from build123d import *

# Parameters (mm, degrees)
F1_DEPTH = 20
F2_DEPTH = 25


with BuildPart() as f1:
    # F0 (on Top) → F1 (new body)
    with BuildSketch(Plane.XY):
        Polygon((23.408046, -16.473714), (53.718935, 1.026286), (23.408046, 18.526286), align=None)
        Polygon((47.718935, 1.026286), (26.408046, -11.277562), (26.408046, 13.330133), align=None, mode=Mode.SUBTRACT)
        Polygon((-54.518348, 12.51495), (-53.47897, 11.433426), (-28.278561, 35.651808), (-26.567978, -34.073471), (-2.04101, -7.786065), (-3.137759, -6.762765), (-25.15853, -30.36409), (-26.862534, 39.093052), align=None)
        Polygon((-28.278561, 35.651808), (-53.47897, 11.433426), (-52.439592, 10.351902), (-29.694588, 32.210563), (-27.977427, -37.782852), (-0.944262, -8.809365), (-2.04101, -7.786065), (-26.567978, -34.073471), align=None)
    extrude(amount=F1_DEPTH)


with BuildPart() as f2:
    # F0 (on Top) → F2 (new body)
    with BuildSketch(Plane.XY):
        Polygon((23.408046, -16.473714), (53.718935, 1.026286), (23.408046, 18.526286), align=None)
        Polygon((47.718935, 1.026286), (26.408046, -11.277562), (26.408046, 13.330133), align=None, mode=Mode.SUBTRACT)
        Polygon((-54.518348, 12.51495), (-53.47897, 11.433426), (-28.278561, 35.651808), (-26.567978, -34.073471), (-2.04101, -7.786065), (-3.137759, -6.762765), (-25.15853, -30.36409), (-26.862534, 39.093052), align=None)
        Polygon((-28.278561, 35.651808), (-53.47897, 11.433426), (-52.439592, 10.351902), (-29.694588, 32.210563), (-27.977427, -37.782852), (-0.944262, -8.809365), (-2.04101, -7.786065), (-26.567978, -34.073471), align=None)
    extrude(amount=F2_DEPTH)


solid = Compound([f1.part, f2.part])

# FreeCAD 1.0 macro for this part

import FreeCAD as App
import Part
import Sketcher

V = App.Vector
Q = App.Units.Quantity

doc = App.newDocument("Part")
body = doc.addObject("PartDesign::Body", "Body")
body.AllowCompound = True

# Sketch on XY plane
sketch1 = doc.addObject("Sketcher::SketchObject", "Sketch")
body.addObject(sketch1)
sketch1.AttachmentSupport = (doc.XY_Plane, [""])
sketch1.MapMode = "FlatFace"
sketch1.addGeometry(Part.LineSegment(V(23.4, -16.5, 0), V(53.7, 1, 0)), False)
sketch1.addGeometry(Part.LineSegment(V(53.7, 1, 0), V(23.4, 18.5, 0)), False)
sketch1.addGeometry(Part.LineSegment(V(23.4, 18.5, 0), V(23.4, -16.5, 0)), False)
sketch1.addGeometry(Part.LineSegment(V(26.4, 13.3, 0), V(47.7, 1, 0)), False)
sketch1.addGeometry(Part.LineSegment(V(47.7, 1, 0), V(26.4, -11.3, 0)), False)
sketch1.addGeometry(Part.LineSegment(V(26.4, -11.3, 0), V(26.4, 13.3, 0)), False)
sketch1.addGeometry(Part.LineSegment(V(-54.5, 12.5, 0), V(-52.4, 10.4, 0)), False)
sketch1.addGeometry(Part.LineSegment(V(-52.4, 10.4, 0), V(-29.7, 32.2, 0)), False)
sketch1.addGeometry(Part.LineSegment(V(-29.7, 32.2, 0), V(-28, -37.8, 0)), False)
sketch1.addGeometry(Part.LineSegment(V(-28, -37.8, 0), V(-0.9, -8.8, 0)), False)
sketch1.addGeometry(Part.LineSegment(V(-0.9, -8.8, 0), V(-2, -7.8, 0)), False)
sketch1.addGeometry(Part.LineSegment(V(-2, -7.8, 0), V(-3.1, -6.8, 0)), False)
sketch1.addGeometry(Part.LineSegment(V(-3.1, -6.8, 0), V(-25.2, -30.4, 0)), False)
sketch1.addGeometry(Part.LineSegment(V(-25.2, -30.4, 0), V(-26.9, 39.1, 0)), False)
sketch1.addGeometry(Part.LineSegment(V(-26.9, 39.1, 0), V(-54.5, 12.5, 0)), False)
sketch1.addConstraint(Sketcher.Constraint("Coincident", 0, 2, 1, 1))
sketch1.addConstraint(Sketcher.Constraint("Coincident", 1, 2, 2, 1))
sketch1.addConstraint(Sketcher.Constraint("Coincident", 2, 2, 0, 1))
sketch1.addConstraint(Sketcher.Constraint("Coincident", 3, 2, 4, 1))
sketch1.addConstraint(Sketcher.Constraint("Coincident", 4, 2, 5, 1))
sketch1.addConstraint(Sketcher.Constraint("Coincident", 5, 2, 3, 1))
sketch1.addConstraint(Sketcher.Constraint("Coincident", 6, 2, 7, 1))
sketch1.addConstraint(Sketcher.Constraint("Coincident", 7, 2, 8, 1))
sketch1.addConstraint(Sketcher.Constraint("Coincident", 8, 2, 9, 1))
sketch1.addConstraint(Sketcher.Constraint("Coincident", 9, 2, 10, 1))
sketch1.addConstraint(Sketcher.Constraint("Coincident", 10, 2, 11, 1))
sketch1.addConstraint(Sketcher.Constraint("Coincident", 11, 2, 12, 1))
sketch1.addConstraint(Sketcher.Constraint("Coincident", 12, 2, 13, 1))
sketch1.addConstraint(Sketcher.Constraint("Coincident", 13, 2, 14, 1))
sketch1.addConstraint(Sketcher.Constraint("Coincident", 14, 2, 6, 1))
sketch1.addConstraint(Sketcher.Constraint("Vertical", 2))
sketch1.addConstraint(Sketcher.Constraint("Vertical", 5))
sketch1.addConstraint(Sketcher.Constraint("Parallel", 1, 3))
sketch1.addConstraint(Sketcher.Constraint("Parallel", 0, 4))
sketch1.addConstraint(Sketcher.Constraint("Perpendicular", 6, 7))
sketch1.addConstraint(Sketcher.Constraint("Perpendicular", 9, 10))
sketch1.addConstraint(Sketcher.Constraint("Parallel", 10, 11))
sketch1.addConstraint(Sketcher.Constraint("Perpendicular", 11, 12))
sketch1.addConstraint(Sketcher.Constraint("Parallel", 8, 13))
sketch1.addConstraint(Sketcher.Constraint("Parallel", 7, 14))
sketch1.addConstraint(Sketcher.Constraint("Horizontal", 0, 2, 3, 2))
sketch1.addConstraint(Sketcher.Constraint("Equal", 0, 1))
sketch1.addConstraint(Sketcher.Constraint("Equal", 10, 11))
sketch1.addConstraint(Sketcher.Constraint("DistanceY", 2, 2, 2, 1, Q("35 mm")))
sketch1.addConstraint(Sketcher.Constraint("Angle", 0, Q("30 deg")))
sketch1.addConstraint(Sketcher.Constraint("Distance", 6, Q("3.000001 mm")))
sketch1.addConstraint(Sketcher.Constraint("DistanceX", 3, 2, 0, 2, Q("6 mm")))
sketch1.addConstraint(Sketcher.Constraint("DistanceX", 2, 2, 4, 2, Q("3 mm")))
sketch1.addConstraint(Sketcher.Constraint("Distance", 10, Q("1.5 mm")))
sketch1.addConstraint(Sketcher.Constraint("DistanceY", 9, 2, 10, 2, Q("1.0233 mm")))
sketch1.addConstraint(Sketcher.Constraint("DistanceY", 10, 2, 5, 2, Q("21.116198 mm")))
sketch1.addConstraint(Sketcher.Constraint("Distance", 7, Q("31.545781 mm")))
sketch1.addConstraint(Sketcher.Constraint("Distance", 13, Q("69.478041 mm")))
sketch1.addConstraint(Sketcher.Constraint("Distance", 14, Q("38.356741 mm")))
sketch1.addConstraint(Sketcher.Constraint("DistanceX", 6, 2, -1, 1, Q("52.439592 mm")))
sketch1.addConstraint(Sketcher.Constraint("DistanceY", 8, 2, -1, 1, Q("37.782852 mm")))
sketch1.addConstraint(Sketcher.Constraint("DistanceX", 10, 2, -1, 1, Q("2.04101 mm")))
sketch1.addConstraint(Sketcher.Constraint("DistanceX", 12, 2, -1, 1, Q("25.15853 mm")))
sketch1.addConstraint(Sketcher.Constraint("DistanceY", 12, 2, -1, 1, Q("30.36409 mm")))
sketch1.addConstraint(Sketcher.Constraint("DistanceX", 13, 2, 1, 2, Q("50.27058 mm")))
pad1 = doc.addObject("PartDesign::Pad", "Pad")
body.addObject(pad1)
pad1.Profile = sketch1
pad1.Length = 20
body2 = doc.addObject("PartDesign::Body", "Body001")
body2.AllowCompound = True

# Sketch on XY plane
sketch2 = doc.addObject("Sketcher::SketchObject", "Sketch001")
body2.addObject(sketch2)
sketch2.AttachmentSupport = (doc.getObject("XY_Plane001"), [""])
sketch2.MapMode = "FlatFace"
sketch2.addGeometry(Part.LineSegment(V(23.4, -16.5, 0), V(53.7, 1, 0)), False)
sketch2.addGeometry(Part.LineSegment(V(53.7, 1, 0), V(23.4, 18.5, 0)), False)
sketch2.addGeometry(Part.LineSegment(V(23.4, 18.5, 0), V(23.4, -16.5, 0)), False)
sketch2.addGeometry(Part.LineSegment(V(26.4, 13.3, 0), V(47.7, 1, 0)), False)
sketch2.addGeometry(Part.LineSegment(V(47.7, 1, 0), V(26.4, -11.3, 0)), False)
sketch2.addGeometry(Part.LineSegment(V(26.4, -11.3, 0), V(26.4, 13.3, 0)), False)
sketch2.addGeometry(Part.LineSegment(V(-54.5, 12.5, 0), V(-52.4, 10.4, 0)), False)
sketch2.addGeometry(Part.LineSegment(V(-52.4, 10.4, 0), V(-29.7, 32.2, 0)), False)
sketch2.addGeometry(Part.LineSegment(V(-29.7, 32.2, 0), V(-28, -37.8, 0)), False)
sketch2.addGeometry(Part.LineSegment(V(-28, -37.8, 0), V(-0.9, -8.8, 0)), False)
sketch2.addGeometry(Part.LineSegment(V(-0.9, -8.8, 0), V(-2, -7.8, 0)), False)
sketch2.addGeometry(Part.LineSegment(V(-2, -7.8, 0), V(-3.1, -6.8, 0)), False)
sketch2.addGeometry(Part.LineSegment(V(-3.1, -6.8, 0), V(-25.2, -30.4, 0)), False)
sketch2.addGeometry(Part.LineSegment(V(-25.2, -30.4, 0), V(-26.9, 39.1, 0)), False)
sketch2.addGeometry(Part.LineSegment(V(-26.9, 39.1, 0), V(-54.5, 12.5, 0)), False)
sketch2.addConstraint(Sketcher.Constraint("Coincident", 0, 2, 1, 1))
sketch2.addConstraint(Sketcher.Constraint("Coincident", 1, 2, 2, 1))
sketch2.addConstraint(Sketcher.Constraint("Coincident", 2, 2, 0, 1))
sketch2.addConstraint(Sketcher.Constraint("Coincident", 3, 2, 4, 1))
sketch2.addConstraint(Sketcher.Constraint("Coincident", 4, 2, 5, 1))
sketch2.addConstraint(Sketcher.Constraint("Coincident", 5, 2, 3, 1))
sketch2.addConstraint(Sketcher.Constraint("Coincident", 6, 2, 7, 1))
sketch2.addConstraint(Sketcher.Constraint("Coincident", 7, 2, 8, 1))
sketch2.addConstraint(Sketcher.Constraint("Coincident", 8, 2, 9, 1))
sketch2.addConstraint(Sketcher.Constraint("Coincident", 9, 2, 10, 1))
sketch2.addConstraint(Sketcher.Constraint("Coincident", 10, 2, 11, 1))
sketch2.addConstraint(Sketcher.Constraint("Coincident", 11, 2, 12, 1))
sketch2.addConstraint(Sketcher.Constraint("Coincident", 12, 2, 13, 1))
sketch2.addConstraint(Sketcher.Constraint("Coincident", 13, 2, 14, 1))
sketch2.addConstraint(Sketcher.Constraint("Coincident", 14, 2, 6, 1))
sketch2.addConstraint(Sketcher.Constraint("Vertical", 2))
sketch2.addConstraint(Sketcher.Constraint("Vertical", 5))
sketch2.addConstraint(Sketcher.Constraint("Parallel", 1, 3))
sketch2.addConstraint(Sketcher.Constraint("Parallel", 0, 4))
sketch2.addConstraint(Sketcher.Constraint("Perpendicular", 6, 7))
sketch2.addConstraint(Sketcher.Constraint("Perpendicular", 9, 10))
sketch2.addConstraint(Sketcher.Constraint("Parallel", 10, 11))
sketch2.addConstraint(Sketcher.Constraint("Perpendicular", 11, 12))
sketch2.addConstraint(Sketcher.Constraint("Parallel", 8, 13))
sketch2.addConstraint(Sketcher.Constraint("Parallel", 7, 14))
sketch2.addConstraint(Sketcher.Constraint("Horizontal", 0, 2, 3, 2))
sketch2.addConstraint(Sketcher.Constraint("Equal", 0, 1))
sketch2.addConstraint(Sketcher.Constraint("Equal", 10, 11))
sketch2.addConstraint(Sketcher.Constraint("DistanceY", 2, 2, 2, 1, Q("35 mm")))
sketch2.addConstraint(Sketcher.Constraint("Angle", 0, Q("30 deg")))
sketch2.addConstraint(Sketcher.Constraint("Distance", 6, Q("3.000001 mm")))
sketch2.addConstraint(Sketcher.Constraint("DistanceX", 3, 2, 0, 2, Q("6 mm")))
sketch2.addConstraint(Sketcher.Constraint("DistanceX", 2, 2, 4, 2, Q("3 mm")))
sketch2.addConstraint(Sketcher.Constraint("Distance", 10, Q("1.5 mm")))
sketch2.addConstraint(Sketcher.Constraint("DistanceY", 9, 2, 10, 2, Q("1.0233 mm")))
sketch2.addConstraint(Sketcher.Constraint("DistanceY", 10, 2, 5, 2, Q("21.116198 mm")))
sketch2.addConstraint(Sketcher.Constraint("Distance", 7, Q("31.545781 mm")))
sketch2.addConstraint(Sketcher.Constraint("Distance", 13, Q("69.478041 mm")))
sketch2.addConstraint(Sketcher.Constraint("Distance", 14, Q("38.356741 mm")))
sketch2.addConstraint(Sketcher.Constraint("DistanceX", 6, 2, -1, 1, Q("52.439592 mm")))
sketch2.addConstraint(Sketcher.Constraint("DistanceY", 8, 2, -1, 1, Q("37.782852 mm")))
sketch2.addConstraint(Sketcher.Constraint("DistanceX", 10, 2, -1, 1, Q("2.04101 mm")))
sketch2.addConstraint(Sketcher.Constraint("DistanceX", 12, 2, -1, 1, Q("25.15853 mm")))
sketch2.addConstraint(Sketcher.Constraint("DistanceY", 12, 2, -1, 1, Q("30.36409 mm")))
sketch2.addConstraint(Sketcher.Constraint("DistanceX", 13, 2, 1, 2, Q("50.27058 mm")))
pad2 = doc.addObject("PartDesign::Pad", "Pad001")
body2.addObject(pad2)
pad2.Profile = sketch2
pad2.Length = 25

doc.recompute()
